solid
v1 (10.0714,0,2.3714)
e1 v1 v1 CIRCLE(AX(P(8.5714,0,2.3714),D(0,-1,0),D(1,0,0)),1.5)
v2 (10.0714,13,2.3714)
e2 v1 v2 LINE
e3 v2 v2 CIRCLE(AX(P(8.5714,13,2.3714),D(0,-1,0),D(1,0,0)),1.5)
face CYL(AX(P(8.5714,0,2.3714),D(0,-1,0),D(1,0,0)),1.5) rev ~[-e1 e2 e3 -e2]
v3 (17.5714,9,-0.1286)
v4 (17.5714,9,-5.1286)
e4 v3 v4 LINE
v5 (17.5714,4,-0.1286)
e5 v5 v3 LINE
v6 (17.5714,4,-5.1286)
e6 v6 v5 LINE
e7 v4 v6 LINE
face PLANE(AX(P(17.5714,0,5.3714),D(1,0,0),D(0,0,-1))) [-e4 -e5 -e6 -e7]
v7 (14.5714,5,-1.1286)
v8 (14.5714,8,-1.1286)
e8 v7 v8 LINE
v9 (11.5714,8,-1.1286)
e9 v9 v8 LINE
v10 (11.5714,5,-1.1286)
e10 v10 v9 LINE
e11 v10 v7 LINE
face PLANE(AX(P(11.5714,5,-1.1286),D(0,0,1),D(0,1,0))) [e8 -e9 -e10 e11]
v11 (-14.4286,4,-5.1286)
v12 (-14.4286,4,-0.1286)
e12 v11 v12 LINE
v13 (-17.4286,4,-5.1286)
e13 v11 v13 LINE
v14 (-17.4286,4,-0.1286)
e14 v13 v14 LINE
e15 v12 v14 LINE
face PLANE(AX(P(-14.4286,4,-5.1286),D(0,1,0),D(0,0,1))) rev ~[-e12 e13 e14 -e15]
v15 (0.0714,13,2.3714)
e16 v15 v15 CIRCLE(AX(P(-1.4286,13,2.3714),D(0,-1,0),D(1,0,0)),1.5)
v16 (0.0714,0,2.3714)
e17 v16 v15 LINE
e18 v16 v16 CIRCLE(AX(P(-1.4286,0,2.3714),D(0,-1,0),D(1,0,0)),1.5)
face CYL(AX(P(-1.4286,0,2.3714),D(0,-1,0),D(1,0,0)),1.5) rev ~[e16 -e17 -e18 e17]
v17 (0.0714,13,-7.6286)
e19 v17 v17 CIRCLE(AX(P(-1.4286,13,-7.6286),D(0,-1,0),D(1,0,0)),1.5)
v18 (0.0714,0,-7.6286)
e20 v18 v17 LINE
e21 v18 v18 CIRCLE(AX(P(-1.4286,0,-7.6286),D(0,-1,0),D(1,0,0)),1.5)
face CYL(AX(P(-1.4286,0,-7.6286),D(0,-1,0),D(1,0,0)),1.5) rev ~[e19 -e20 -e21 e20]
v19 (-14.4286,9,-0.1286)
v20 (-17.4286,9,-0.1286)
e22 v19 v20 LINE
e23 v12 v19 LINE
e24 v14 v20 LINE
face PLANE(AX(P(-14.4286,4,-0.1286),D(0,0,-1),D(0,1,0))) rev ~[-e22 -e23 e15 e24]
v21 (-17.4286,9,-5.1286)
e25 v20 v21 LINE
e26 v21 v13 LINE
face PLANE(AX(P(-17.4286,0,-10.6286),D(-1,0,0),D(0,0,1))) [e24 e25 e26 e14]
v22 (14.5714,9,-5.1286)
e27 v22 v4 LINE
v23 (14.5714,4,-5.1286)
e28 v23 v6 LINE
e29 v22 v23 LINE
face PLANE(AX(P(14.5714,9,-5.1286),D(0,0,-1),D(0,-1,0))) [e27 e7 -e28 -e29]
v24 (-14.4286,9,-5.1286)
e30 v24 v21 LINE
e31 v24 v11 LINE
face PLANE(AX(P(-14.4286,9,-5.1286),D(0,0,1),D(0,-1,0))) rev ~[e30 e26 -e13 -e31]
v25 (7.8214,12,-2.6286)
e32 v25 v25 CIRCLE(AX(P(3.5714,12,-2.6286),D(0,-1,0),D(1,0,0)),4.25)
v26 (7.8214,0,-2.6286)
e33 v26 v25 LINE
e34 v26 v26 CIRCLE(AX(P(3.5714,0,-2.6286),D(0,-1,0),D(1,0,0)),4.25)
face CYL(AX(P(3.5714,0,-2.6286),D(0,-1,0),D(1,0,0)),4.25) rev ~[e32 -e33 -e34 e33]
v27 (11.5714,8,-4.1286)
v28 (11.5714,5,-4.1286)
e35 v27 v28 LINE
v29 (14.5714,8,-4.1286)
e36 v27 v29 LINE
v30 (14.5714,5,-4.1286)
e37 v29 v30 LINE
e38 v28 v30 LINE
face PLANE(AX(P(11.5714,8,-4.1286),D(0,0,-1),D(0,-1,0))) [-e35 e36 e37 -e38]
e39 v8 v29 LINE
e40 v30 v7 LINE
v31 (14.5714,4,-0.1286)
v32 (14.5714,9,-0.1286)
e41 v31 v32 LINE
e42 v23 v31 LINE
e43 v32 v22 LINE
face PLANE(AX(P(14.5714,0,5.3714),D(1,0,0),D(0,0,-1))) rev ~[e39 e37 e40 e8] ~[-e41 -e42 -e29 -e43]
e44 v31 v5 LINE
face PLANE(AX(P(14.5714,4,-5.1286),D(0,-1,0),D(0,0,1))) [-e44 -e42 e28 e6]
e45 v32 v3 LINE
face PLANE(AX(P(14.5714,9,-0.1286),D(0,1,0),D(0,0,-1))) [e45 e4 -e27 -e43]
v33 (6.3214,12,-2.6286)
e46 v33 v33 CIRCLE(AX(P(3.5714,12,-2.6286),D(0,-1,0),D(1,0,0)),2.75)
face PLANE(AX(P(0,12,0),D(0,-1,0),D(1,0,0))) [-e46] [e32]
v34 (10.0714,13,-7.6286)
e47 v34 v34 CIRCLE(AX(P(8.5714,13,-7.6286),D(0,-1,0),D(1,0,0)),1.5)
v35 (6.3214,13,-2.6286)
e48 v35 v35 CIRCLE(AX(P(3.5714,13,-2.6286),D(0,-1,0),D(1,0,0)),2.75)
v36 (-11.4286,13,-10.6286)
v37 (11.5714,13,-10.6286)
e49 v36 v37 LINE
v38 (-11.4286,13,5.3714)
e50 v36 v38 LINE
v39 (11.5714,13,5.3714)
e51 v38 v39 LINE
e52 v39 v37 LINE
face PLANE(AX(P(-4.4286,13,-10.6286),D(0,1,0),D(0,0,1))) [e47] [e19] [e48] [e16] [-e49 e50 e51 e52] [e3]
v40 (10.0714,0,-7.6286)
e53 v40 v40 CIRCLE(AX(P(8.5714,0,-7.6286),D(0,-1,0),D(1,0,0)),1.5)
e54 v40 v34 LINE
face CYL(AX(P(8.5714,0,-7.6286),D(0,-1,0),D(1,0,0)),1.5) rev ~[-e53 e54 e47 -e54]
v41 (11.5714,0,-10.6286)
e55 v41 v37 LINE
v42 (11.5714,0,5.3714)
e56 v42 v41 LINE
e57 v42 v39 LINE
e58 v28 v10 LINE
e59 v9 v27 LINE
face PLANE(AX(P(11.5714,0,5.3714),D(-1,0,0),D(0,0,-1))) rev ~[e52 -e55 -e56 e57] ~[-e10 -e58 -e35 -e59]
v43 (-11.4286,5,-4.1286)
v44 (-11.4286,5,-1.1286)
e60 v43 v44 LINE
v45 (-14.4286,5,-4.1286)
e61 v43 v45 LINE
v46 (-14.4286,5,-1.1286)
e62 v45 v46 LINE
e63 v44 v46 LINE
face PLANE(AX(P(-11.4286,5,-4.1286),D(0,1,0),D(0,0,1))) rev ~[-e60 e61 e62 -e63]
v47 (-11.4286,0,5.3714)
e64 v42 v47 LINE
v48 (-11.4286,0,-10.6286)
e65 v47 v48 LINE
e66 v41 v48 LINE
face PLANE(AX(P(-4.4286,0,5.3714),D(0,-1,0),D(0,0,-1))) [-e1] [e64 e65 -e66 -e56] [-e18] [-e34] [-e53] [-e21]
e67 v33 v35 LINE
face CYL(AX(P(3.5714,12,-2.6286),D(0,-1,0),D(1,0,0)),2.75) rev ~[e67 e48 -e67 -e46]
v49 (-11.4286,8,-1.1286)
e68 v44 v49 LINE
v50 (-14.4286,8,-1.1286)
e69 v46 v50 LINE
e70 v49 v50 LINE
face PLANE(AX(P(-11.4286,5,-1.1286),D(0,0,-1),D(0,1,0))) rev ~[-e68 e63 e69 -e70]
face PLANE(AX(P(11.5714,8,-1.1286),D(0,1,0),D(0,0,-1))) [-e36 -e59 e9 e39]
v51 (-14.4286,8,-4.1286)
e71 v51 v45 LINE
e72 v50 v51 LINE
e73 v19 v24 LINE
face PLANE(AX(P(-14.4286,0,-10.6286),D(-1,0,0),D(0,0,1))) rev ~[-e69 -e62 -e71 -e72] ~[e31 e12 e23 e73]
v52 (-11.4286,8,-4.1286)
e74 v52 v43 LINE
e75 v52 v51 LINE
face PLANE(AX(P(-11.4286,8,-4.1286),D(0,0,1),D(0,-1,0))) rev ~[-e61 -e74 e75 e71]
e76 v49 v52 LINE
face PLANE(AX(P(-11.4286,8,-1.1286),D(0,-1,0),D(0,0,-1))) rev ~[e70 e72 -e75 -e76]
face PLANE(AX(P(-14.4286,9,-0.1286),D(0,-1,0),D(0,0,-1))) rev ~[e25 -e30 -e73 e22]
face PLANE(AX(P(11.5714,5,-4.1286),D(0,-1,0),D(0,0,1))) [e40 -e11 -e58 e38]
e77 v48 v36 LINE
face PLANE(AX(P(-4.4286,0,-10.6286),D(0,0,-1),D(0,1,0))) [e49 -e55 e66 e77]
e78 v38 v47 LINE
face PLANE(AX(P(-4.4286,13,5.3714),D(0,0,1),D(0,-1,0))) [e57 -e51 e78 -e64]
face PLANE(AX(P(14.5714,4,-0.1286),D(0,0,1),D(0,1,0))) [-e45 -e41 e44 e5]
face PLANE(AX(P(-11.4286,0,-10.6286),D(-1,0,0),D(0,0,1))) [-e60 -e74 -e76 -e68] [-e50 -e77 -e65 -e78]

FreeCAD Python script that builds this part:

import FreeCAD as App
import Part
import Sketcher
from FreeCAD import Vector
Q = App.Units.Quantity


def add_polygon(sketch, points):
    """Adds a closed chain of lines whose ends are joined by coincident constraints."""
    first, n = sketch.GeometryCount, len(points)
    for a, b in zip(points, points[1:] + points[:1]):
        sketch.addGeometry(Part.LineSegment(App.Vector(*a, 0), App.Vector(*b, 0)), False)
    for i in range(n):
        sketch.addConstraint(Sketcher.Constraint("Coincident", first + i, 2, first + (i + 1) % n, 1))

doc = App.newDocument("Part")
body = doc.addObject("PartDesign::Body", "Body")

sketch1 = body.newObject("Sketcher::SketchObject", "Sketch")
sketch1.AttachmentSupport = (doc.getObject("XZ_Plane"), [""])
sketch1.MapMode = "FlatFace"
add_polygon(sketch1, [(-4, -11), (-4, 5), (12, 5), (12, -11)])
sketch1.addConstraint([
    Sketcher.Constraint("Vertical", 0),
    Sketcher.Constraint("Horizontal", 1),
    Sketcher.Constraint("Vertical", 2),
    Sketcher.Constraint("Horizontal", 3),
    Sketcher.Constraint("Equal", 3, 0),
    Sketcher.Constraint("DistanceX", 1, 1, 1, 2, Q("16 mm")),
    Sketcher.Constraint("DistanceX", 0, 2, -1, 1, Q("4.4286 mm")),
    Sketcher.Constraint("DistanceY", -1, 1, 0, 2, Q("5.3714 mm")),
])
pad1 = body.newObject("PartDesign::Pad", "Pad")
pad1.Profile = sketch1
pad1.Length = 13
pad1.Reversed = True

sketch2 = body.newObject("Sketcher::SketchObject", "Sketch001")
sketch2.AttachmentSupport = (doc.getObject("XZ_Plane"), [""])
sketch2.MapMode = "FlatFace"
sketch2.addGeometry(Part.Circle(Vector(3.6, -2.6, 0), Vector(0, 0, 1), 4.2), False)
sketch2.addConstraint([
    Sketcher.Constraint("Diameter", 0, Q("8.5 mm")),
    Sketcher.Constraint("DistanceX", -1, 1, 0, 3, Q("3.5714 mm")),
    Sketcher.Constraint("DistanceY", 0, 3, -1, 1, Q("2.6286 mm")),
])
pocket1 = body.newObject("PartDesign::Pocket", "Pocket")
pocket1.Profile = sketch2
pocket1.Length = 12

sketch3 = body.newObject("Sketcher::SketchObject", "Sketch002")
sketch3.AttachmentSupport = (doc.getObject("XZ_Plane"), [""])
sketch3.MapMode = "FlatFace"
sketch3.AttachmentOffset = App.Placement(Vector(0, 0, -12), App.Rotation())
sketch3.addGeometry(Part.Circle(Vector(3.6, -2.6, 0), Vector(0, 0, 1), 2.8), False)
sketch3.addConstraint([
    Sketcher.Constraint("Diameter", 0, Q("5.5 mm")),
    Sketcher.Constraint("DistanceX", -1, 1, 0, 3, Q("3.5714 mm")),
    Sketcher.Constraint("DistanceY", 0, 3, -1, 1, Q("2.6286 mm")),
])
pocket2 = body.newObject("PartDesign::Pocket", "Pocket001")
pocket2.Profile = sketch3
pocket2.Type = "ThroughAll"

sketch4 = body.newObject("Sketcher::SketchObject", "Sketch003")
sketch4.AttachmentSupport = (doc.getObject("XZ_Plane"), [""])
sketch4.MapMode = "FlatFace"
sketch4.addGeometry([
    Part.Circle(Vector(8.6, 2.4, 0), Vector(0, 0, 1), 1.5),
    Part.Circle(Vector(-1.4, 2.4, 0), Vector(0, 0, 1), 1.5),
    Part.Circle(Vector(-1.4, -7.6, 0), Vector(0, 0, 1), 1.5),
    Part.Circle(Vector(8.6, -7.6, 0), Vector(0, 0, 1), 1.5),
], False)
sketch4.addConstraint([
    Sketcher.Constraint("Equal", 0, 1),
    Sketcher.Constraint("Equal", 1, 2),
    Sketcher.Constraint("Equal", 2, 3),
    Sketcher.Constraint("Horizontal", 0, 3, 1, 3),
    Sketcher.Constraint("Horizontal", 2, 3, 3, 3),
    Sketcher.Constraint("Vertical", 1, 3, 2, 3),
    Sketcher.Constraint("Vertical", 0, 3, 3, 3),
    Sketcher.Constraint("Diameter", 0, Q("3 mm")),
    Sketcher.Constraint("DistanceX", 1, 3, 0, 3, Q("10 mm")),
    Sketcher.Constraint("DistanceY", 2, 3, 1, 3, Q("10 mm")),
    Sketcher.Constraint("DistanceX", -1, 1, 0, 3, Q("8.5714 mm")),
    Sketcher.Constraint("DistanceY", -1, 1, 0, 3, Q("2.3714 mm")),
])
pocket3 = body.newObject("PartDesign::Pocket", "Pocket002")
pocket3.Profile = sketch4
pocket3.Type = "ThroughAll"

sketch5 = body.newObject("Sketcher::SketchObject", "Sketch004")
sketch5.AttachmentSupport = (doc.getObject("YZ_Plane"), [""])
sketch5.MapMode = "FlatFace"
sketch5.AttachmentOffset = App.Placement(Vector(0, 0, 11.5714), App.Rotation())
add_polygon(sketch5, [(8, -4.1), (8, -1.1), (5, -1.1), (5, -4.1)])
sketch5.addConstraint([
    Sketcher.Constraint("Vertical", 0),
    Sketcher.Constraint("Horizontal", 1),
    Sketcher.Constraint("Vertical", 2),
    Sketcher.Constraint("Horizontal", 3),
    Sketcher.Constraint("Equal", 3, 0),
    Sketcher.Constraint("DistanceX", 1, 2, 1, 1, Q("3 mm")),
    Sketcher.Constraint("DistanceX", -1, 1, 1, 2, Q("5 mm")),
    Sketcher.Constraint("DistanceY", 0, 2, -1, 1, Q("1.1286 mm")),
])
pad2 = body.newObject("PartDesign::Pad", "Pad001")
pad2.Profile = sketch5
pad2.Length = 3

sketch6 = body.newObject("Sketcher::SketchObject", "Sketch005")
sketch6.AttachmentSupport = (doc.getObject("YZ_Plane"), [""])
sketch6.MapMode = "FlatFace"
sketch6.AttachmentOffset = App.Placement(Vector(0, 0, 14.5714), App.Rotation())
add_polygon(sketch6, [(9, -5), (9, 0), (4, 0), (4, -5)])
sketch6.addConstraint([
    Sketcher.Constraint("Vertical", 0),
    Sketcher.Constraint("Horizontal", 1),
    Sketcher.Constraint("Vertical", 2),
    Sketcher.Constraint("Horizontal", 3),
    Sketcher.Constraint("Equal", 3, 0),
    Sketcher.Constraint("DistanceX", 1, 2, 1, 1, Q("5 mm")),
    Sketcher.Constraint("DistanceX", -1, 1, 1, 2, Q("4 mm")),
    Sketcher.Constraint("DistanceY", 0, 2, -1, 1, Q("0.1286 mm")),
])
pad3 = body.newObject("PartDesign::Pad", "Pad002")
pad3.Profile = sketch6
pad3.Length = 3

sketch7 = body.newObject("Sketcher::SketchObject", "Sketch006")
sketch7.AttachmentSupport = (doc.getObject("YZ_Plane"), [""])
sketch7.MapMode = "FlatFace"
sketch7.AttachmentOffset = App.Placement(Vector(0, 0, -4.4286), App.Rotation())
add_polygon(sketch7, [(13, -11), (0, -11), (0, 5), (13, 5)])
sketch7.addConstraint([
    Sketcher.Constraint("Horizontal", 0),
    Sketcher.Constraint("Vertical", 1),
    Sketcher.Constraint("Horizontal", 2),
    Sketcher.Constraint("Vertical", 3),
    Sketcher.Constraint("PointOnObject", 0, 2, -2),
    Sketcher.Constraint("DistanceX", 0, 2, 0, 1, Q("13 mm")),
    Sketcher.Constraint("DistanceY", 1, 1, 1, 2, Q("16 mm")),
    Sketcher.Constraint("DistanceY", 0, 2, -1, 1, Q("10.6286 mm")),
])
pad4 = body.newObject("PartDesign::Pad", "Pad003")
pad4.Profile = sketch7
pad4.Length = 7
pad4.Reversed = True

sketch8 = body.newObject("Sketcher::SketchObject", "Sketch007")
sketch8.AttachmentSupport = (doc.getObject("YZ_Plane"), [""])
sketch8.MapMode = "FlatFace"
sketch8.AttachmentOffset = App.Placement(Vector(0, 0, -11.4286), App.Rotation())
add_polygon(sketch8, [(5, -1.1), (8, -1.1), (8, -4.1), (5, -4.1)])
sketch8.addConstraint([
    Sketcher.Constraint("Horizontal", 0),
    Sketcher.Constraint("Vertical", 1),
    Sketcher.Constraint("Horizontal", 2),
    Sketcher.Constraint("Vertical", 3),
    Sketcher.Constraint("Equal", 2, 1),
    Sketcher.Constraint("DistanceX", 0, 1, 0, 2, Q("3 mm")),
    Sketcher.Constraint("DistanceX", -1, 1, 2, 2, Q("5 mm")),
    Sketcher.Constraint("DistanceY", 0, 2, -1, 1, Q("1.1286 mm")),
])
pad5 = body.newObject("PartDesign::Pad", "Pad004")
pad5.Profile = sketch8
pad5.Length = 3
pad5.Reversed = True

sketch9 = body.newObject("Sketcher::SketchObject", "Sketch008")
sketch9.AttachmentSupport = (doc.getObject("YZ_Plane"), [""])
sketch9.MapMode = "FlatFace"
sketch9.AttachmentOffset = App.Placement(Vector(0, 0, -14.4286), App.Rotation())
add_polygon(sketch9, [(4, 0), (9, 0), (9, -5), (4, -5)])
sketch9.addConstraint([
    Sketcher.Constraint("Horizontal", 0),
    Sketcher.Constraint("Vertical", 1),
    Sketcher.Constraint("Horizontal", 2),
    Sketcher.Constraint("Vertical", 3),
    Sketcher.Constraint("Equal", 2, 1),
    Sketcher.Constraint("DistanceX", 0, 1, 0, 2, Q("5 mm")),
    Sketcher.Constraint("DistanceX", -1, 1, 2, 2, Q("4 mm")),
    Sketcher.Constraint("DistanceY", 0, 2, -1, 1, Q("0.1286 mm")),
])
pad6 = body.newObject("PartDesign::Pad", "Pad005")
pad6.Profile = sketch9
pad6.Length = 3
pad6.Reversed = True

doc.recompute()
